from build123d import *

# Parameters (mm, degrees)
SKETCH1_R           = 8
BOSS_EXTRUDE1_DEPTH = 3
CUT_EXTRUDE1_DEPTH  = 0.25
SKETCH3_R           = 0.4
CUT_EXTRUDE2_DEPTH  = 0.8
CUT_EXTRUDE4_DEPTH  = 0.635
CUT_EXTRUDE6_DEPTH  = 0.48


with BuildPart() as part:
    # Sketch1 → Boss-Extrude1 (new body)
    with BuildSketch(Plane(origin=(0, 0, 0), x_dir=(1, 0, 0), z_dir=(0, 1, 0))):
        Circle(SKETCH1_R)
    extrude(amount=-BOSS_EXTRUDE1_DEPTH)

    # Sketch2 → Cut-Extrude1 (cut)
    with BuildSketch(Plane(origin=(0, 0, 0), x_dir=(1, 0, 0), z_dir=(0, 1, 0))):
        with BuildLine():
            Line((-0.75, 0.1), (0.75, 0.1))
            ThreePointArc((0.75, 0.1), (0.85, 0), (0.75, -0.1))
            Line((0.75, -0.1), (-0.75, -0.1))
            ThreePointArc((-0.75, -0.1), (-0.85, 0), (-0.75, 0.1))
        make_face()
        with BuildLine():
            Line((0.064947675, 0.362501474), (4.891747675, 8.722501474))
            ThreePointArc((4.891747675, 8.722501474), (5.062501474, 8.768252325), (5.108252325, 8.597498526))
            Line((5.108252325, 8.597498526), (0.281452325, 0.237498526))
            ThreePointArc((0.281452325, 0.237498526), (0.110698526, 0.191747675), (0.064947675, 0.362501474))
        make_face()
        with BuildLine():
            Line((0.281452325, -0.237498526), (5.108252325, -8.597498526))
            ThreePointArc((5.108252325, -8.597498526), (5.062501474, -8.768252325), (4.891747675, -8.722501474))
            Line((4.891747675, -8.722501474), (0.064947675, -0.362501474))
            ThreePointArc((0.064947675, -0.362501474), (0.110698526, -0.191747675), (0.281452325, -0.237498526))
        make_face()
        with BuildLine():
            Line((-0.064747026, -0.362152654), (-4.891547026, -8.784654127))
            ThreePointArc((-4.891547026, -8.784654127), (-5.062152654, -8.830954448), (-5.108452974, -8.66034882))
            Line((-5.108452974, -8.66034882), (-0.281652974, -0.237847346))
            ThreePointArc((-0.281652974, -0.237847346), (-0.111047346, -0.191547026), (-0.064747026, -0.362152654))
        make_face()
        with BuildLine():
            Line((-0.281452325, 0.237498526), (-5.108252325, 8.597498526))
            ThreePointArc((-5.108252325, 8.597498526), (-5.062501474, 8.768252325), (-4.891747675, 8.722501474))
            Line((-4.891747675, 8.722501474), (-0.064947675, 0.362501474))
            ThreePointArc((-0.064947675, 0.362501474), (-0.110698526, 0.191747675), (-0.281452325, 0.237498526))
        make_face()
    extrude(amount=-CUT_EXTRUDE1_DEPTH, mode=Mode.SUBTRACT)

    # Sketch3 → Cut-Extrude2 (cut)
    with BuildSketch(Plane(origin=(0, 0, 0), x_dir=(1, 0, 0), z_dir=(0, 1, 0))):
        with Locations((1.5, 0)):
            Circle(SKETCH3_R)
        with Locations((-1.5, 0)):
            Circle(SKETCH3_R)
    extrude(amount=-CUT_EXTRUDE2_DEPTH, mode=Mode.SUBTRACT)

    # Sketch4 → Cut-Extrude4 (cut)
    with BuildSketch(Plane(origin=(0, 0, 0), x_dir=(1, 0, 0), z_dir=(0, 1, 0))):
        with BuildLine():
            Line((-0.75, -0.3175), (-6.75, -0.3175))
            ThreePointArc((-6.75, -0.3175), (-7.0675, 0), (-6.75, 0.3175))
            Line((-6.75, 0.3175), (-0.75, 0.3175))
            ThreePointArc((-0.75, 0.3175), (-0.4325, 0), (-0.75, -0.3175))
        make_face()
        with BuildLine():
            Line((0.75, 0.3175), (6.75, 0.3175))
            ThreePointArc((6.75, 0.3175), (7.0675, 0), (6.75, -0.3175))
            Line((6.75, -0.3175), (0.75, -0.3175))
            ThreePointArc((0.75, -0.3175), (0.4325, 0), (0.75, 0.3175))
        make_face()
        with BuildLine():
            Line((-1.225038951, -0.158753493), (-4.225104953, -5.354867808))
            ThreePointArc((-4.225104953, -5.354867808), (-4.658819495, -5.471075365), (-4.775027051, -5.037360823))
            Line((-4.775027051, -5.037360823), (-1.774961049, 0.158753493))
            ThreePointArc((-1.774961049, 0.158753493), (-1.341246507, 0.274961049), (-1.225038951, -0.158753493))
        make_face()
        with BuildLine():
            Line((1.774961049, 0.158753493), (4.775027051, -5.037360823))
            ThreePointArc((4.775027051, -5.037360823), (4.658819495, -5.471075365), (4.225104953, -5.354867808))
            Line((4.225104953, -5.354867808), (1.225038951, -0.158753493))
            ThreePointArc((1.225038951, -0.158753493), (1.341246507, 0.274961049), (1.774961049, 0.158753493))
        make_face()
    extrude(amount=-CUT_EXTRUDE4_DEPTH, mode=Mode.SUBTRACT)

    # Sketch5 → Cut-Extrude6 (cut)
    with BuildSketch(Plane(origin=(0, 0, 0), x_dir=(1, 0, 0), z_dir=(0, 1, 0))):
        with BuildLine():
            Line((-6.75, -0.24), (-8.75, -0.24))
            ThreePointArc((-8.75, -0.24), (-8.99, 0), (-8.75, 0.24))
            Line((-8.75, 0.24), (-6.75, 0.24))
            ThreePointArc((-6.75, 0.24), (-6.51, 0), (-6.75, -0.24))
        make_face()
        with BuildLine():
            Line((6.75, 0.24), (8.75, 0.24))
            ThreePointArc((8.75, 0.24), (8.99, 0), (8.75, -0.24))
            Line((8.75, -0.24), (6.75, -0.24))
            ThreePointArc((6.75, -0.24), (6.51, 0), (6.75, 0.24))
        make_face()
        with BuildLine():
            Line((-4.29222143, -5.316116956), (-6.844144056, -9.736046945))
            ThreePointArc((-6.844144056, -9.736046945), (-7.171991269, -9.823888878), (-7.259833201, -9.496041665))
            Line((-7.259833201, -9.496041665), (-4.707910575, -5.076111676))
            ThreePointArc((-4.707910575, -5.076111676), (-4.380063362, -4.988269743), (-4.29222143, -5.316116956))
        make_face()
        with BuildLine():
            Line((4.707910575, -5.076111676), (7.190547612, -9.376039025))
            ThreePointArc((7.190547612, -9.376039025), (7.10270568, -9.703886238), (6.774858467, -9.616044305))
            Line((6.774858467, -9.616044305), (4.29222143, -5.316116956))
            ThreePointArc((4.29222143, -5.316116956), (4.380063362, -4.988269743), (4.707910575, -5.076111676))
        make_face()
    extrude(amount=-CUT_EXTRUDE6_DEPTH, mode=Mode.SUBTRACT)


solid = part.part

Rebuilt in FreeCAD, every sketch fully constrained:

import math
import FreeCAD as App
import Part
import Sketcher
from FreeCAD import Vector
Q = App.Units.Quantity

doc = App.newDocument("Part")
body = doc.addObject("PartDesign::Body", "Body")

# Sketch on XZ plane
sketch1 = body.newObject("Sketcher::SketchObject", "Sketch")
sketch1.AttachmentSupport = (doc.getObject("XZ_Plane"), [""])
sketch1.MapMode = "FlatFace"
sketch1.addGeometry(Part.Circle(Vector(0, 0, 0), Vector(0, 0, 1), 8), False)
sketch1.addConstraint(Sketcher.Constraint("Coincident", 0, 3, -1, 1))
sketch1.addConstraint(Sketcher.Constraint("Diameter", 0, Q("16 mm")))
pad1 = body.newObject("PartDesign::Pad", "Pad")
pad1.Profile = sketch1
pad1.Length = 3

# Sketch on XZ plane
sketch2 = body.newObject("Sketcher::SketchObject", "Sketch001")
sketch2.AttachmentSupport = (doc.getObject("XZ_Plane"), [""])
sketch2.MapMode = "FlatFace"
sketch2.addGeometry(Part.LineSegment(Vector(0.75, -0.1, 0), Vector(-0.75, -0.1, 0)), False)
sketch2.addGeometry(Part.ArcOfCircle(Part.Circle(Vector(-0.75, 0, 0), Vector(0, 0, 1), 0.1), math.radians(90), math.radians(270)), False)
sketch2.addGeometry(Part.LineSegment(Vector(-0.75, 0.1, 0), Vector(0.75, 0.1, 0)), False)
sketch2.addGeometry(Part.ArcOfCircle(Part.Circle(Vector(0.75, 0, 0), Vector(0, 0, 1), 0.1), math.radians(-90), math.radians(90)), False)
sketch2.addGeometry(Part.LineSegment(Vector(4.891748, -8.722501, 0), Vector(0.064948, -0.362501, 0)), False)
sketch2.addGeometry(Part.ArcOfCircle(Part.Circle(Vector(0.1732, -0.3, 0), Vector(0, 0, 1), 0.125), math.radians(30.00078), math.radians(210.00078)), False)
sketch2.addGeometry(Part.LineSegment(Vector(0.281452, -0.237499, 0), Vector(5.108252, -8.597499, 0)), False)
sketch2.addGeometry(Part.ArcOfCircle(Part.Circle(Vector(5, -8.66, 0), Vector(0, 0, 1), 0.125), math.radians(-149.99922), math.radians(30.00078)), False)
sketch2.addGeometry(Part.LineSegment(Vector(5.108252, 8.597499, 0), Vector(0.281452, 0.237499, 0)), False)
sketch2.addGeometry(Part.ArcOfCircle(Part.Circle(Vector(0.1732, 0.3, 0), Vector(0, 0, 1), 0.125), math.radians(149.99922), math.radians(329.99922)), False)
sketch2.addGeometry(Part.LineSegment(Vector(0.064948, 0.362501, 0), Vector(4.891748, 8.722501, 0)), False)
sketch2.addGeometry(Part.ArcOfCircle(Part.Circle(Vector(5, 8.66, 0), Vector(0, 0, 1), 0.125), math.radians(-30.00078), math.radians(149.99922)), False)
sketch2.addGeometry(Part.LineSegment(Vector(-4.891547, 8.784654, 0), Vector(-0.064747, 0.362153, 0)), False)
sketch2.addGeometry(Part.ArcOfCircle(Part.Circle(Vector(-0.1732, 0.3, 0), Vector(0, 0, 1), 0.125), math.radians(-150.183672), math.radians(29.816328)), False)
sketch2.addGeometry(Part.LineSegment(Vector(-0.281653, 0.237847, 0), Vector(-5.108453, 8.660349, 0)), False)
sketch2.addGeometry(Part.ArcOfCircle(Part.Circle(Vector(-5, 8.722501, 0), Vector(0, 0, 1), 0.125), math.radians(29.816327), math.radians(209.816328)), False)
sketch2.addGeometry(Part.LineSegment(Vector(-5.108252, -8.597499, 0), Vector(-0.281452, -0.237499, 0)), False)
sketch2.addGeometry(Part.ArcOfCircle(Part.Circle(Vector(-0.1732, -0.3, 0), Vector(0, 0, 1), 0.125), math.radians(-30.00078), math.radians(149.99922)), False)
sketch2.addGeometry(Part.LineSegment(Vector(-0.064948, -0.362501, 0), Vector(-4.891748, -8.722501, 0)), False)
sketch2.addGeometry(Part.ArcOfCircle(Part.Circle(Vector(-5, -8.66, 0), Vector(0, 0, 1), 0.125), math.radians(149.99922), math.radians(329.99922)), False)
sketch2.addConstraint(Sketcher.Constraint("Tangent", 0, 2, 1, 2))
sketch2.addConstraint(Sketcher.Constraint("Tangent", 1, 1, 2, 1))
sketch2.addConstraint(Sketcher.Constraint("Tangent", 2, 2, 3, 2))
sketch2.addConstraint(Sketcher.Constraint("Tangent", 3, 1, 0, 1))
sketch2.addConstraint(Sketcher.Constraint("Tangent", 4, 2, 5, 2))
sketch2.addConstraint(Sketcher.Constraint("Tangent", 5, 1, 6, 1))
sketch2.addConstraint(Sketcher.Constraint("Tangent", 6, 2, 7, 2))
sketch2.addConstraint(Sketcher.Constraint("Tangent", 7, 1, 4, 1))
sketch2.addConstraint(Sketcher.Constraint("Tangent", 8, 2, 9, 2))
sketch2.addConstraint(Sketcher.Constraint("Tangent", 9, 1, 10, 1))
sketch2.addConstraint(Sketcher.Constraint("Tangent", 10, 2, 11, 2))
sketch2.addConstraint(Sketcher.Constraint("Tangent", 11, 1, 8, 1))
sketch2.addConstraint(Sketcher.Constraint("Tangent", 12, 2, 13, 2))
sketch2.addConstraint(Sketcher.Constraint("Tangent", 13, 1, 14, 1))
sketch2.addConstraint(Sketcher.Constraint("Tangent", 14, 2, 15, 2))
sketch2.addConstraint(Sketcher.Constraint("Tangent", 15, 1, 12, 1))
sketch2.addConstraint(Sketcher.Constraint("Tangent", 16, 2, 17, 2))
sketch2.addConstraint(Sketcher.Constraint("Tangent", 17, 1, 18, 1))
sketch2.addConstraint(Sketcher.Constraint("Tangent", 18, 2, 19, 2))
sketch2.addConstraint(Sketcher.Constraint("Tangent", 19, 1, 16, 1))
sketch2.addConstraint(Sketcher.Constraint("Horizontal", 0))
sketch2.addConstraint(Sketcher.Constraint("Horizontal", 2))
sketch2.addConstraint(Sketcher.Constraint("Equal", 5, 7))
sketch2.addConstraint(Sketcher.Constraint("Equal", 7, 9))
sketch2.addConstraint(Sketcher.Constraint("Equal", 9, 11))
sketch2.addConstraint(Sketcher.Constraint("Equal", 11, 13))
sketch2.addConstraint(Sketcher.Constraint("Equal", 13, 15))
sketch2.addConstraint(Sketcher.Constraint("Equal", 15, 17))
sketch2.addConstraint(Sketcher.Constraint("Equal", 17, 19))
sketch2.addConstraint(Sketcher.Constraint("Symmetric", 1, 3, 3, 3, -1, 1))
sketch2.addConstraint(Sketcher.Constraint("Symmetric", 5, 3, 13, 3, -1, 1))
sketch2.addConstraint(Sketcher.Constraint("Symmetric", 9, 3, 17, 3, -1, 1))
sketch2.addConstraint(Sketcher.Constraint("Symmetric", 11, 3, 19, 3, -1, 1))
sketch2.addConstraint(Sketcher.Constraint("Symmetric", 9, 3, 13, 3, -2))
sketch2.addConstraint(Sketcher.Constraint("Symmetric", 7, 3, 19, 3, -2))
sketch2.addConstraint(Sketcher.Constraint("Horizontal", 15, 3, 10, 2))
sketch2.addConstraint(Sketcher.Constraint("Vertical", 15, 3, 19, 3))
sketch2.addConstraint(Sketcher.Constraint("Radius", 1, Q("0.1 mm")))
sketch2.addConstraint(Sketcher.Constraint("DistanceX", 0, 2, 0, 1, Q("1.5 mm")))
sketch2.addConstraint(Sketcher.Constraint("DistanceX", -1, 1, 7, 3, Q("5 mm")))
sketch2.addConstraint(Sketcher.Constraint("Radius", 5, Q("0.125 mm")))
sketch2.addConstraint(Sketcher.Constraint("DistanceY", 5, 3, -1, 1, Q("0.3 mm")))
sketch2.addConstraint(Sketcher.Constraint("DistanceY", 7, 3, -1, 1, Q("8.66 mm")))
sketch2.addConstraint(Sketcher.Constraint("DistanceX", -1, 1, 5, 3, Q("0.1732 mm")))
pocket1 = body.newObject("PartDesign::Pocket", "Pocket")
pocket1.Profile = sketch2
pocket1.Length = 0.25
pocket1.Reversed = True

# Sketch on XZ plane
sketch3 = body.newObject("Sketcher::SketchObject", "Sketch002")
sketch3.AttachmentSupport = (doc.getObject("XZ_Plane"), [""])
sketch3.MapMode = "FlatFace"
sketch3.addGeometry(Part.Circle(Vector(1.5, 0, 0), Vector(0, 0, 1), 0.4), False)
sketch3.addGeometry(Part.Circle(Vector(-1.5, 0, 0), Vector(0, 0, 1), 0.4), False)
sketch3.addConstraint(Sketcher.Constraint("Equal", 0, 1))
sketch3.addConstraint(Sketcher.Constraint("Symmetric", 0, 3, 1, 3, -1, 1))
sketch3.addConstraint(Sketcher.Constraint("PointOnObject", 0, 3, -1))
sketch3.addConstraint(Sketcher.Constraint("Diameter", 0, Q("0.8 mm")))
sketch3.addConstraint(Sketcher.Constraint("DistanceX", 1, 3, 0, 3, Q("3 mm")))
pocket2 = body.newObject("PartDesign::Pocket", "Pocket001")
pocket2.Profile = sketch3
pocket2.Length = 0.8
pocket2.Reversed = True

# Sketch on XZ plane
sketch4 = body.newObject("Sketcher::SketchObject", "Sketch003")
sketch4.AttachmentSupport = (doc.getObject("XZ_Plane"), [""])
sketch4.MapMode = "FlatFace"
sketch4.addGeometry(Part.ArcOfCircle(Part.Circle(Vector(-0.75, 0, 0), Vector(0, 0, 1), 0.3175), math.radians(-90), math.radians(90)), False)
sketch4.addGeometry(Part.LineSegment(Vector(-0.75, -0.3175, 0), Vector(-6.75, -0.3175, 0)), False)
sketch4.addGeometry(Part.ArcOfCircle(Part.Circle(Vector(-6.75, 0, 0), Vector(0, 0, 1), 0.3175), math.radians(90), math.radians(270)), False)
sketch4.addGeometry(Part.LineSegment(Vector(-6.75, 0.3175, 0), Vector(-2.049934, 0.3175, 0)), False)
sketch4.addGeometry(Part.LineSegment(Vector(-2.049934, 0.3175, 0), Vector(-4.775027, 5.037361, 0)), False)
sketch4.addGeometry(Part.ArcOfCircle(Part.Circle(Vector(-4.500066, 5.196114, 0), Vector(0, 0, 1), 0.3175), math.radians(30.000728), math.radians(210.000728)), False)
sketch4.addGeometry(Part.LineSegment(Vector(-4.225105, 5.354868, 0), Vector(-1.316694, 0.3175, 0)), False)
sketch4.addGeometry(Part.LineSegment(Vector(-1.316694, 0.3175, 0), Vector(-0.75, 0.3175, 0)), False)
sketch4.addGeometry(Part.ArcOfCircle(Part.Circle(Vector(0.75, 0, 0), Vector(0, 0, 1), 0.3175), math.radians(90), math.radians(270)), False)
sketch4.addGeometry(Part.LineSegment(Vector(0.75, 0.3175, 0), Vector(1.316694, 0.3175, 0)), False)
sketch4.addGeometry(Part.LineSegment(Vector(1.316694, 0.3175, 0), Vector(4.225105, 5.354868, 0)), False)
sketch4.addGeometry(Part.ArcOfCircle(Part.Circle(Vector(4.500066, 5.196114, 0), Vector(0, 0, 1), 0.3175), math.radians(-30.000728), math.radians(149.999272)), False)
sketch4.addGeometry(Part.LineSegment(Vector(4.775027, 5.037361, 0), Vector(2.049934, 0.3175, 0)), False)
sketch4.addGeometry(Part.LineSegment(Vector(2.049934, 0.3175, 0), Vector(6.75, 0.3175, 0)), False)
sketch4.addGeometry(Part.ArcOfCircle(Part.Circle(Vector(6.75, 0, 0), Vector(0, 0, 1), 0.3175), math.radians(-90), math.radians(90)), False)
sketch4.addGeometry(Part.LineSegment(Vector(6.75, -0.3175, 0), Vector(0.75, -0.3175, 0)), False)
sketch4.addConstraint(Sketcher.Constraint("Tangent", 0, 1, 1, 1))
sketch4.addConstraint(Sketcher.Constraint("Tangent", 1, 2, 2, 2))
sketch4.addConstraint(Sketcher.Constraint("Tangent", 2, 1, 3, 1))
sketch4.addConstraint(Sketcher.Constraint("Coincident", 3, 2, 4, 1))
sketch4.addConstraint(Sketcher.Constraint("Tangent", 4, 2, 5, 2))
sketch4.addConstraint(Sketcher.Constraint("Tangent", 5, 1, 6, 1))
sketch4.addConstraint(Sketcher.Constraint("Coincident", 6, 2, 7, 1))
sketch4.addConstraint(Sketcher.Constraint("Tangent", 7, 2, 0, 2))
sketch4.addConstraint(Sketcher.Constraint("Tangent", 8, 1, 9, 1))
sketch4.addConstraint(Sketcher.Constraint("Coincident", 9, 2, 10, 1))
sketch4.addConstraint(Sketcher.Constraint("Tangent", 10, 2, 11, 2))
sketch4.addConstraint(Sketcher.Constraint("Tangent", 11, 1, 12, 1))
sketch4.addConstraint(Sketcher.Constraint("Coincident", 12, 2, 13, 1))
sketch4.addConstraint(Sketcher.Constraint("Tangent", 13, 2, 14, 2))
sketch4.addConstraint(Sketcher.Constraint("Tangent", 14, 1, 15, 1))
sketch4.addConstraint(Sketcher.Constraint("Tangent", 15, 2, 8, 2))
sketch4.addConstraint(Sketcher.Constraint("Horizontal", 1))
sketch4.addConstraint(Sketcher.Constraint("Horizontal", 3))
sketch4.addConstraint(Sketcher.Constraint("Horizontal", 7))
sketch4.addConstraint(Sketcher.Constraint("Horizontal", 9))
sketch4.addConstraint(Sketcher.Constraint("Horizontal", 13))
sketch4.addConstraint(Sketcher.Constraint("Horizontal", 15))
sketch4.addConstraint(Sketcher.Constraint("Equal", 0, 2))
sketch4.addConstraint(Sketcher.Constraint("Equal", 2, 5))
sketch4.addConstraint(Sketcher.Constraint("Equal", 5, 8))
sketch4.addConstraint(Sketcher.Constraint("Equal", 8, 11))
sketch4.addConstraint(Sketcher.Constraint("Equal", 11, 14))
sketch4.addConstraint(Sketcher.Constraint("Symmetric", 0, 3, 8, 3, -1, 1))
sketch4.addConstraint(Sketcher.Constraint("Symmetric", 5, 3, 11, 3, -2))
sketch4.addConstraint(Sketcher.Constraint("Symmetric", 2, 3, 14, 3, -2))
sketch4.addConstraint(Sketcher.Constraint("Parallel", 4, 6))
sketch4.addConstraint(Sketcher.Constraint("Parallel", 10, 12))
sketch4.addConstraint(Sketcher.Constraint("Horizontal", 5, 1, 10, 2))
sketch4.addConstraint(Sketcher.Constraint("DistanceX", 1, 2, 1, 1, Q("6 mm")))
sketch4.addConstraint(Sketcher.Constraint("Radius", 0, Q("0.3175 mm")))
sketch4.addConstraint(Sketcher.Constraint("DistanceX", 0, 3, 8, 3, Q("1.5 mm")))
sketch4.addConstraint(Sketcher.Constraint("DistanceX", 3, 1, 3, 2, Q("4.700066 mm")))
sketch4.addConstraint(Sketcher.Constraint("DistanceX", 7, 1, 7, 2, Q("0.566694 mm")))
sketch4.addConstraint(Sketcher.Constraint("DistanceY", -1, 1, 4, 2, Q("5.037361 mm")))
pocket3 = body.newObject("PartDesign::Pocket", "Pocket002")
pocket3.Profile = sketch4
pocket3.Length = 0.635
pocket3.Reversed = True

# Sketch on XZ plane
sketch5 = body.newObject("Sketcher::SketchObject", "Sketch004")
sketch5.AttachmentSupport = (doc.getObject("XZ_Plane"), [""])
sketch5.MapMode = "FlatFace"
sketch5.addGeometry(Part.LineSegment(Vector(-8.75, 0.24, 0), Vector(-6.75, 0.24, 0)), False)
sketch5.addGeometry(Part.ArcOfCircle(Part.Circle(Vector(-6.75, 0, 0), Vector(0, 0, 1), 0.24), math.radians(-90), math.radians(90)), False)
sketch5.addGeometry(Part.LineSegment(Vector(-6.75, -0.24, 0), Vector(-8.75, -0.24, 0)), False)
sketch5.addGeometry(Part.ArcOfCircle(Part.Circle(Vector(-8.75, 0, 0), Vector(0, 0, 1), 0.24), math.radians(90), math.radians(270)), False)
sketch5.addGeometry(Part.LineSegment(Vector(8.75, -0.24, 0), Vector(6.75, -0.24, 0)), False)
sketch5.addGeometry(Part.ArcOfCircle(Part.Circle(Vector(6.75, 0, 0), Vector(0, 0, 1), 0.24), math.radians(90), math.radians(270)), False)
sketch5.addGeometry(Part.LineSegment(Vector(6.75, 0.24, 0), Vector(8.75, 0.24, 0)), False)
sketch5.addGeometry(Part.ArcOfCircle(Part.Circle(Vector(8.75, 0, 0), Vector(0, 0, 1), 0.24), math.radians(-90), math.radians(90)), False)
sketch5.addGeometry(Part.LineSegment(Vector(-6.844144, 9.736047, 0), Vector(-4.292221, 5.316117, 0)), False)
sketch5.addGeometry(Part.ArcOfCircle(Part.Circle(Vector(-4.500066, 5.196114, 0), Vector(0, 0, 1), 0.24), math.radians(-149.999272), math.radians(30.000728)), False)
sketch5.addGeometry(Part.LineSegment(Vector(-4.707911, 5.076112, 0), Vector(-7.259833, 9.496042, 0)), False)
sketch5.addGeometry(Part.ArcOfCircle(Part.Circle(Vector(-7.051989, 9.616044, 0), Vector(0, 0, 1), 0.24), math.radians(30.000728), math.radians(210.000728)), False)
sketch5.addGeometry(Part.LineSegment(Vector(7.190548, 9.376039, 0), Vector(4.707911, 5.076112, 0)), False)
sketch5.addGeometry(Part.ArcOfCircle(Part.Circle(Vector(4.500066, 5.196114, 0), Vector(0, 0, 1), 0.24), math.radians(149.999272), math.radians(329.999272)), False)
sketch5.addGeometry(Part.LineSegment(Vector(4.292221, 5.316117, 0), Vector(6.774858, 9.616044, 0)), False)
sketch5.addGeometry(Part.ArcOfCircle(Part.Circle(Vector(6.982703, 9.496042, 0), Vector(0, 0, 1), 0.24), math.radians(-30.000728), math.radians(149.999272)), False)
sketch5.addConstraint(Sketcher.Constraint("Coincident", 0, 2, 1, 2))
sketch5.addConstraint(Sketcher.Constraint("Coincident", 1, 1, 2, 1))
sketch5.addConstraint(Sketcher.Constraint("Coincident", 2, 2, 3, 2))
sketch5.addConstraint(Sketcher.Constraint("Coincident", 3, 1, 0, 1))
sketch5.addConstraint(Sketcher.Constraint("Coincident", 4, 2, 5, 2))
sketch5.addConstraint(Sketcher.Constraint("Coincident", 5, 1, 6, 1))
sketch5.addConstraint(Sketcher.Constraint("Coincident", 6, 2, 7, 2))
sketch5.addConstraint(Sketcher.Constraint("Coincident", 7, 1, 4, 1))
sketch5.addConstraint(Sketcher.Constraint("Coincident", 8, 2, 9, 2))
sketch5.addConstraint(Sketcher.Constraint("Coincident", 9, 1, 10, 1))
sketch5.addConstraint(Sketcher.Constraint("Coincident", 10, 2, 11, 2))
sketch5.addConstraint(Sketcher.Constraint("Coincident", 11, 1, 8, 1))
sketch5.addConstraint(Sketcher.Constraint("Coincident", 12, 2, 13, 2))
sketch5.addConstraint(Sketcher.Constraint("Coincident", 13, 1, 14, 1))
sketch5.addConstraint(Sketcher.Constraint("Coincident", 14, 2, 15, 2))
sketch5.addConstraint(Sketcher.Constraint("Coincident", 15, 1, 12, 1))
sketch5.addConstraint(Sketcher.Constraint("Horizontal", 0))
sketch5.addConstraint(Sketcher.Constraint("Horizontal", 2))
sketch5.addConstraint(Sketcher.Constraint("Horizontal", 4))
sketch5.addConstraint(Sketcher.Constraint("Horizontal", 6))
sketch5.addConstraint(Sketcher.Constraint("PointOnObject", 1, 3, -1))
sketch5.addConstraint(Sketcher.Constraint("PointOnObject", 5, 3, -1))
sketch5.addConstraint(Sketcher.Constraint("DistanceX", 0, 1, 0, 2, Q("2 mm")))
sketch5.addConstraint(Sketcher.Constraint("DistanceX", 2, 2, 2, 1, Q("2 mm")))
sketch5.addConstraint(Sketcher.Constraint("DistanceX", 4, 2, 4, 1, Q("2 mm")))
sketch5.addConstraint(Sketcher.Constraint("DistanceX", 6, 1, 6, 2, Q("2 mm")))
sketch5.addConstraint(Sketcher.Constraint("Radius", 1, Q("0.24 mm")))
sketch5.addConstraint(Sketcher.Constraint("Radius", 5, Q("0.24 mm")))
sketch5.addConstraint(Sketcher.Constraint("Radius", 9, Q("0.24 mm")))
sketch5.addConstraint(Sketcher.Constraint("Radius", 11, Q("0.24 mm")))
sketch5.addConstraint(Sketcher.Constraint("Radius", 13, Q("0.24 mm")))
sketch5.addConstraint(Sketcher.Constraint("Radius", 15, Q("0.24 mm")))
sketch5.addConstraint(Sketcher.Constraint("DistanceX", 3, 3, 1, 3, Q("2 mm")))
sketch5.addConstraint(Sketcher.Constraint("DistanceX", 5, 3, 7, 3, Q("2 mm")))
sketch5.addConstraint(Sketcher.Constraint("DistanceX", 3, 3, 0, 2, Q("2 mm")))
sketch5.addConstraint(Sketcher.Constraint("DistanceX", 3, 3, 1, 1, Q("2 mm")))
sketch5.addConstraint(Sketcher.Constraint("DistanceX", 4, 2, 7, 3, Q("2 mm")))
sketch5.addConstraint(Sketcher.Constraint("DistanceX", 5, 1, 7, 3, Q("2 mm")))
sketch5.addConstraint(Sketcher.Constraint("DistanceX", 1, 3, 5, 3, Q("13.5 mm")))
sketch5.addConstraint(Sketcher.Constraint("DistanceX", 1, 3, -1, 1, Q("6.75 mm")))
sketch5.addConstraint(Sketcher.Constraint("DistanceX", 11, 3, -1, 1, Q("7.051989 mm")))
sketch5.addConstraint(Sketcher.Constraint("DistanceY", -1, 1, 15, 3, Q("9.496042 mm")))
sketch5.addConstraint(Sketcher.Constraint("DistanceX", 8, 2, -1, 1, Q("4.292221 mm")))
sketch5.addConstraint(Sketcher.Constraint("DistanceX", 9, 1, -1, 1, Q("4.707911 mm")))
sketch5.addConstraint(Sketcher.Constraint("DistanceY", -1, 1, 9, 1, Q("5.076112 mm")))
sketch5.addConstraint(Sketcher.Constraint("DistanceY", -1, 1, 10, 2, Q("9.496042 mm")))
sketch5.addConstraint(Sketcher.Constraint("DistanceX", -1, 1, 12, 2, Q("4.707911 mm")))
sketch5.addConstraint(Sketcher.Constraint("DistanceY", -1, 1, 12, 2, Q("5.076112 mm")))
sketch5.addConstraint(Sketcher.Constraint("DistanceX", -1, 1, 13, 1, Q("4.292221 mm")))
sketch5.addConstraint(Sketcher.Constraint("DistanceX", -1, 1, 14, 2, Q("6.774858 mm")))
sketch5.addConstraint(Sketcher.Constraint("DistanceY", -1, 1, 15, 1, Q("9.376039 mm")))
sketch5.addConstraint(Sketcher.Constraint("DistanceY", 9, 3, 11, 3, Q("4.41993 mm")))
sketch5.addConstraint(Sketcher.Constraint("DistanceY", 13, 3, 11, 3, Q("4.41993 mm")))
sketch5.addConstraint(Sketcher.Constraint("DistanceX", 9, 3, 15, 3, Q("11.482769 mm")))
sketch5.addConstraint(Sketcher.Constraint("DistanceX", 11, 3, 15, 3, Q("14.034692 mm")))
sketch5.addConstraint(Sketcher.Constraint("DistanceX", 10, 2, 11, 1, Q("0.415689 mm")))
pocket4 = body.newObject("PartDesign::Pocket", "Pocket003")
pocket4.Profile = sketch5
pocket4.Length = 0.48
pocket4.Reversed = True

doc.recompute()
